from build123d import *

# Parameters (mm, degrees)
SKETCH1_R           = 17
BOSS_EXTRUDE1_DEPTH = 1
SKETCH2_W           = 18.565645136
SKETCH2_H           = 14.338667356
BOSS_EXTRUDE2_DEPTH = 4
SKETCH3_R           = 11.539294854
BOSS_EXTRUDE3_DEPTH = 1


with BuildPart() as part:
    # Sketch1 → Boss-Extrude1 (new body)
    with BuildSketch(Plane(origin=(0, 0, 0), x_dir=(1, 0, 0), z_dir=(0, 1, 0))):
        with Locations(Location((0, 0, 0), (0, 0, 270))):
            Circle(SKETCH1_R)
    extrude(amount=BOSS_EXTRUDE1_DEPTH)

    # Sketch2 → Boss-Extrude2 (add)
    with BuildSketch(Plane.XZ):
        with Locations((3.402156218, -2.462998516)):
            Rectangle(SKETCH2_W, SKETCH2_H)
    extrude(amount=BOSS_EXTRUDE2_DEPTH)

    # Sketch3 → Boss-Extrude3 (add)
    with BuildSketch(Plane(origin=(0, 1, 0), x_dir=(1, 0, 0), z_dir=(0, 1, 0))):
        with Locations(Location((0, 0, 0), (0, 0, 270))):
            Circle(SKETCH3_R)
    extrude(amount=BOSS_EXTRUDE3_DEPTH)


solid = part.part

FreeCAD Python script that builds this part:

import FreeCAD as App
import Part
import Sketcher

V = App.Vector
Q = App.Units.Quantity


def add_polygon(sketch, points):
    """Adds a closed chain of lines whose ends are joined by coincident constraints."""
    first, n = sketch.GeometryCount, len(points)
    for a, b in zip(points, points[1:] + points[:1]):
        sketch.addGeometry(Part.LineSegment(App.Vector(*a, 0), App.Vector(*b, 0)), False)
    for i in range(n):
        sketch.addConstraint(Sketcher.Constraint("Coincident", first + i, 2, first + (i + 1) % n, 1))

doc = App.newDocument("Part")
body = doc.addObject("PartDesign::Body", "Body")

sketch1 = body.newObject("Sketcher::SketchObject", "Sketch")
sketch1.AttachmentSupport = (doc.getObject("XZ_Plane"), [""])
sketch1.MapMode = "FlatFace"
sketch1.addGeometry(Part.Circle(V(0, 0, 0), V(0, 0, 1), 17), False)
sketch1.addConstraint([
    Sketcher.Constraint("Coincident", 0, 3, -1, 1),
    Sketcher.Constraint("Diameter", 0, Q("34 mm")),
])
pad1 = body.newObject("PartDesign::Pad", "Pad")
pad1.Profile = sketch1
pad1.Length = 1
pad1.Reversed = True

sketch2 = body.newObject("Sketcher::SketchObject", "Sketch001")
sketch2.AttachmentSupport = (doc.getObject("XZ_Plane"), [""])
sketch2.MapMode = "FlatFace"
add_polygon(sketch2, [(-6, 5), (-6, -10), (13, -10), (13, 5)])
sketch2.addConstraint([
    Sketcher.Constraint("Vertical", 0),
    Sketcher.Constraint("Horizontal", 1),
    Sketcher.Constraint("Vertical", 2),
    Sketcher.Constraint("Horizontal", 3),
    Sketcher.Constraint("DistanceX", 1, 1, 1, 2, Q("18.565645 mm")),
    Sketcher.Constraint("DistanceY", 0, 2, 0, 1, Q("14.338667 mm")),
    Sketcher.Constraint("DistanceX", -1, 1, 1, 2, Q("12.684979 mm")),
    Sketcher.Constraint("DistanceY", 0, 2, -1, 1, Q("9.632332 mm")),
])
pad2 = body.newObject("PartDesign::Pad", "Pad001")
pad2.Profile = sketch2
pad2.Length = 4

sketch3 = body.newObject("Sketcher::SketchObject", "Sketch002")
sketch3.AttachmentSupport = (doc.getObject("XZ_Plane"), [""])
sketch3.MapMode = "FlatFace"
sketch3.AttachmentOffset = App.Placement(V(0, 0, -1), App.Rotation())
sketch3.addGeometry(Part.Circle(V(0, 0, 0), V(0, 0, 1), 12), False)
sketch3.addConstraint([
    Sketcher.Constraint("Coincident", 0, 3, -1, 1),
    Sketcher.Constraint("Diameter", 0, Q("23.07859 mm")),
])
pad3 = body.newObject("PartDesign::Pad", "Pad002")
pad3.Profile = sketch3
pad3.Length = 1
pad3.Reversed = True

doc.recompute()
